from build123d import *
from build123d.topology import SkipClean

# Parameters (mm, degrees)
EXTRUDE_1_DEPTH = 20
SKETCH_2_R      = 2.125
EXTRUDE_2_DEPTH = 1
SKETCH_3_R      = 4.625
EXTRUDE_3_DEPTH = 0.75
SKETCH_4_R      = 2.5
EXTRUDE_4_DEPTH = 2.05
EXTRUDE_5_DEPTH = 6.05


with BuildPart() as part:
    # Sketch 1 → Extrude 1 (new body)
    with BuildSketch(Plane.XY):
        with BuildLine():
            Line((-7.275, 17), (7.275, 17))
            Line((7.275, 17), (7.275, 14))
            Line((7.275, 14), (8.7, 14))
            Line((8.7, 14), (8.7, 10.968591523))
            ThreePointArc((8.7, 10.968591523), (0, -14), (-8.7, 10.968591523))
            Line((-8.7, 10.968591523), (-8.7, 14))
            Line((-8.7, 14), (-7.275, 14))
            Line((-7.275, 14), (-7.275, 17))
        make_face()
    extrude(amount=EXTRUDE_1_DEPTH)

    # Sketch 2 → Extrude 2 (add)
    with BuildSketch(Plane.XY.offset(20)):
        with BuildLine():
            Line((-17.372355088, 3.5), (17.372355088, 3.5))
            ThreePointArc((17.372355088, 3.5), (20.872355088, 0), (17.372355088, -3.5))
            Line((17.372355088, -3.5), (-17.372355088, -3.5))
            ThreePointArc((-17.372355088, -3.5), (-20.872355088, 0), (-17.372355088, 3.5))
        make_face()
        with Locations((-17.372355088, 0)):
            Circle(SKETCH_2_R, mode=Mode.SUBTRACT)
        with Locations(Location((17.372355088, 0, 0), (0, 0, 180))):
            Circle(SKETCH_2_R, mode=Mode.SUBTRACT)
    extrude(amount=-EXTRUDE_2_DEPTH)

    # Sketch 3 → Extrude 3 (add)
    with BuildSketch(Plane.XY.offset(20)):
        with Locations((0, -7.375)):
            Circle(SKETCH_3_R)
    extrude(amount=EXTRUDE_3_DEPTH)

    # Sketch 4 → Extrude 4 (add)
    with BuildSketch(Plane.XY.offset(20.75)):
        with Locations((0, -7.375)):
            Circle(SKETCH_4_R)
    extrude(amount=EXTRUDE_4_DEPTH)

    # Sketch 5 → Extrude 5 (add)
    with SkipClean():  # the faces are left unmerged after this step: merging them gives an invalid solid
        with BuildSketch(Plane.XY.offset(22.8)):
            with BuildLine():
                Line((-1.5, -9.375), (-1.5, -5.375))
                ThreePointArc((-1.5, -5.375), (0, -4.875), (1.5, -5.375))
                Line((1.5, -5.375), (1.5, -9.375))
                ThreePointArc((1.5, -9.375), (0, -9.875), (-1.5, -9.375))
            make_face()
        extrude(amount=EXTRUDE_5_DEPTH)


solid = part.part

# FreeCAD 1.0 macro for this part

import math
import FreeCAD as App
import Part
import Sketcher
Q = App.Units.Quantity

doc = App.newDocument("Part")
params = doc.addObject("Spreadsheet::Sheet", "Params")
for row, (alias, value) in enumerate([
    ("sketch1_radius", "14 mm"),
    ("sketch1_height", "3 mm"),
    ("sketch1_width", "14.55 mm"),
    ("pad1_length", "20 mm"),
    ("sketch2_radius", "3.5 mm"),
    ("sketch2_diameter", "4.25 mm"),
    ("pad2_length", "1 mm"),
    ("sketch3_diameter", "9.25 mm"),
    ("pad3_length", "0.75 mm"),
    ("sketch4_diameter", "5 mm"),
    ("pad4_length", "2.05 mm"),
    ("sketch5_radius", "2.5 mm"),
    ("sketch5_height", "4 mm"),
    ("pad5_length", "6.05 mm"),
], start=1):
    params.set(f"A{row}", alias)
    params.set(f"B{row}", "=" + value)
    params.setAlias(f"B{row}", alias)

body = doc.addObject("PartDesign::Body", "Body")

sketch1 = body.newObject("Sketcher::SketchObject", "Sketch")
sketch1.AttachmentSupport = (doc.getObject("XY_Plane"), [""])
sketch1.MapMode = "FlatFace"
sketch1.addGeometry([
    Part.LineSegment(App.Vector(7.3, 17, 0), App.Vector(-7.3, 17, 0)),
    Part.LineSegment(App.Vector(-7.3, 17, 0), App.Vector(-7.3, 14, 0)),
    Part.LineSegment(App.Vector(-7.3, 14, 0), App.Vector(-8.7, 14, 0)),
    Part.LineSegment(App.Vector(-8.7, 14, 0), App.Vector(-8.7, 11, 0)),
    Part.ArcOfCircle(Part.Circle(App.Vector(0, 0, 0), App.Vector(0, 0, 1), 14), math.radians(128), math.radians(412)),
    Part.LineSegment(App.Vector(8.7, 11, 0), App.Vector(8.7, 14, 0)),
    Part.LineSegment(App.Vector(8.7, 14, 0), App.Vector(7.3, 14, 0)),
    Part.LineSegment(App.Vector(7.3, 14, 0), App.Vector(7.3, 17, 0)),
], False)
sketch1.addConstraint([
    Sketcher.Constraint("Coincident", 0, 2, 1, 1),
    Sketcher.Constraint("Coincident", 1, 2, 2, 1),
    Sketcher.Constraint("Coincident", 2, 2, 3, 1),
    Sketcher.Constraint("Coincident", 3, 2, 4, 1),
    Sketcher.Constraint("Coincident", 4, 2, 5, 1),
    Sketcher.Constraint("Coincident", 5, 2, 6, 1),
    Sketcher.Constraint("Coincident", 6, 2, 7, 1),
    Sketcher.Constraint("Coincident", 7, 2, 0, 1),
    Sketcher.Constraint("Horizontal", 0),
    Sketcher.Constraint("Vertical", 1),
    Sketcher.Constraint("Horizontal", 2),
    Sketcher.Constraint("Vertical", 3),
    Sketcher.Constraint("Vertical", 5),
    Sketcher.Constraint("Horizontal", 6),
    Sketcher.Constraint("Vertical", 7),
    Sketcher.Constraint("Coincident", 4, 3, -1, 1),
    Sketcher.Constraint("Symmetric", 2, 2, 5, 2, -2),
    Sketcher.Constraint("Equal", 2, 6),
    Sketcher.Constraint("Radius", 4, Q("14 mm")),
    Sketcher.Constraint("DistanceY", 1, 2, 1, 1, Q("3 mm")),
    Sketcher.Constraint("DistanceY", -1, 1, 0, 2, Q("17 mm")),
    Sketcher.Constraint("DistanceX", 0, 2, 0, 1, Q("14.55 mm")),
    Sketcher.Constraint("DistanceX", 2, 2, -1, 1, Q("8.7 mm")),
])
sketch1.setExpression("Constraints[18]", "Params.sketch1_radius")
sketch1.setExpression("Constraints[19]", "Params.sketch1_height")
sketch1.setExpression("Constraints[21]", "Params.sketch1_width")
pad1 = body.newObject("PartDesign::Pad", "Pad")
pad1.Profile = sketch1
pad1.setExpression("Length", "Params.pad1_length")

sketch2 = body.newObject("Sketcher::SketchObject", "Sketch001")
sketch2.AttachmentSupport = (doc.getObject("XY_Plane"), [""])
sketch2.MapMode = "FlatFace"
sketch2.AttachmentOffset = App.Placement(App.Vector(0, 0, 20), App.Rotation())
sketch2.addGeometry([
    Part.LineSegment(App.Vector(17.4, 3.5, 0), App.Vector(-17.4, 3.5, 0)),
    Part.ArcOfCircle(Part.Circle(App.Vector(-17.4, 0, 0), App.Vector(0, 0, 1), 3.5), math.radians(90), math.radians(270)),
    Part.LineSegment(App.Vector(-17.4, -3.5, 0), App.Vector(17.4, -3.5, 0)),
    Part.ArcOfCircle(Part.Circle(App.Vector(17.4, 0, 0), App.Vector(0, 0, 1), 3.5), math.radians(-90), math.radians(90)),
    Part.Circle(App.Vector(17.4, 0, 0), App.Vector(0, 0, 1), 2.1),
    Part.Circle(App.Vector(-17.4, 0, 0), App.Vector(0, 0, 1), 2.1),
], False)
sketch2.addConstraint([
    Sketcher.Constraint("Tangent", 0, 2, 1, 1),
    Sketcher.Constraint("Tangent", 1, 2, 2, 1),
    Sketcher.Constraint("Tangent", 2, 2, 3, 1),
    Sketcher.Constraint("Tangent", 3, 2, 0, 1),
    Sketcher.Constraint("Horizontal", 0),
    Sketcher.Constraint("Horizontal", 2),
    Sketcher.Constraint("Coincident", 4, 3, 3, 3),
    Sketcher.Constraint("Coincident", 5, 3, 1, 3),
    Sketcher.Constraint("Equal", 4, 5),
    Sketcher.Constraint("Symmetric", 1, 3, 3, 3, -1, 1),
    Sketcher.Constraint("Radius", 1, Q("3.5 mm")),
    Sketcher.Constraint("Diameter", 4, Q("4.25 mm")),
    Sketcher.Constraint("DistanceX", 0, 2, 0, 1, Q("34.74471 mm")),
])
sketch2.setExpression("Constraints[10]", "Params.sketch2_radius")
sketch2.setExpression("Constraints[11]", "Params.sketch2_diameter")
pad2 = body.newObject("PartDesign::Pad", "Pad001")
pad2.Profile = sketch2
pad2.setExpression("Length", "Params.pad2_length")
pad2.Reversed = True

sketch3 = body.newObject("Sketcher::SketchObject", "Sketch002")
sketch3.AttachmentSupport = (doc.getObject("XY_Plane"), [""])
sketch3.MapMode = "FlatFace"
sketch3.AttachmentOffset = App.Placement(App.Vector(0, 0, 20), App.Rotation())
sketch3.addGeometry(Part.Circle(App.Vector(0, -7.4, 0), App.Vector(0, 0, 1), 4.6), False)
sketch3.addConstraint([
    Sketcher.Constraint("PointOnObject", 0, 3, -2),
    Sketcher.Constraint("Diameter", 0, Q("9.25 mm")),
    Sketcher.Constraint("DistanceY", 0, 3, -1, 1, Q("7.375 mm")),
])
sketch3.setExpression("Constraints[1]", "Params.sketch3_diameter")
pad3 = body.newObject("PartDesign::Pad", "Pad002")
pad3.Profile = sketch3
pad3.setExpression("Length", "Params.pad3_length")

sketch4 = body.newObject("Sketcher::SketchObject", "Sketch003")
sketch4.AttachmentSupport = (doc.getObject("XY_Plane"), [""])
sketch4.MapMode = "FlatFace"
sketch4.AttachmentOffset = App.Placement(App.Vector(0, 0, 20.75), App.Rotation())
sketch4.addGeometry(Part.Circle(App.Vector(0, -7.4, 0), App.Vector(0, 0, 1), 2.5), False)
sketch4.addConstraint([
    Sketcher.Constraint("PointOnObject", 0, 3, -2),
    Sketcher.Constraint("Diameter", 0, Q("5 mm")),
    Sketcher.Constraint("DistanceY", 0, 3, -1, 1, Q("7.375 mm")),
])
sketch4.setExpression("Constraints[1]", "Params.sketch4_diameter")
pad4 = body.newObject("PartDesign::Pad", "Pad003")
pad4.Profile = sketch4
pad4.setExpression("Length", "Params.pad4_length")

sketch5 = body.newObject("Sketcher::SketchObject", "Sketch004")
sketch5.AttachmentSupport = (doc.getObject("XY_Plane"), [""])
sketch5.MapMode = "FlatFace"
sketch5.AttachmentOffset = App.Placement(App.Vector(0, 0, 22.8), App.Rotation())
sketch5.addGeometry([
    Part.LineSegment(App.Vector(-1.5, -5.4, 0), App.Vector(-1.5, -9.4, 0)),
    Part.ArcOfCircle(Part.Circle(App.Vector(0, -7.4, 0), App.Vector(0, 0, 1), 2.5), math.radians(-127), math.radians(-53)),
    Part.LineSegment(App.Vector(1.5, -9.4, 0), App.Vector(1.5, -5.4, 0)),
    Part.ArcOfCircle(Part.Circle(App.Vector(0, -7.4, 0), App.Vector(0, 0, 1), 2.5), math.radians(53), math.radians(127)),
], False)
sketch5.addConstraint([
    Sketcher.Constraint("Coincident", 0, 2, 1, 1),
    Sketcher.Constraint("Coincident", 1, 2, 2, 1),
    Sketcher.Constraint("Coincident", 2, 2, 3, 1),
    Sketcher.Constraint("Coincident", 3, 2, 0, 1),
    Sketcher.Constraint("Vertical", 0),
    Sketcher.Constraint("Vertical", 2),
    Sketcher.Constraint("Coincident", 3, 3, 1, 3),
    Sketcher.Constraint("Equal", 1, 3),
    Sketcher.Constraint("Symmetric", 0, 2, 1, 2, -2),
    Sketcher.Constraint("Radius", 1, Q("2.5 mm")),
    Sketcher.Constraint("DistanceY", 0, 2, 0, 1, Q("4 mm")),
    Sketcher.Constraint("DistanceY", 1, 3, -1, 1, Q("7.375 mm")),
])
sketch5.setExpression("Constraints[9]", "Params.sketch5_radius")
sketch5.setExpression("Constraints[10]", "Params.sketch5_height")
pad5 = body.newObject("PartDesign::Pad", "Pad004")
pad5.Profile = sketch5
pad5.setExpression("Length", "Params.pad5_length")

doc.recompute()
